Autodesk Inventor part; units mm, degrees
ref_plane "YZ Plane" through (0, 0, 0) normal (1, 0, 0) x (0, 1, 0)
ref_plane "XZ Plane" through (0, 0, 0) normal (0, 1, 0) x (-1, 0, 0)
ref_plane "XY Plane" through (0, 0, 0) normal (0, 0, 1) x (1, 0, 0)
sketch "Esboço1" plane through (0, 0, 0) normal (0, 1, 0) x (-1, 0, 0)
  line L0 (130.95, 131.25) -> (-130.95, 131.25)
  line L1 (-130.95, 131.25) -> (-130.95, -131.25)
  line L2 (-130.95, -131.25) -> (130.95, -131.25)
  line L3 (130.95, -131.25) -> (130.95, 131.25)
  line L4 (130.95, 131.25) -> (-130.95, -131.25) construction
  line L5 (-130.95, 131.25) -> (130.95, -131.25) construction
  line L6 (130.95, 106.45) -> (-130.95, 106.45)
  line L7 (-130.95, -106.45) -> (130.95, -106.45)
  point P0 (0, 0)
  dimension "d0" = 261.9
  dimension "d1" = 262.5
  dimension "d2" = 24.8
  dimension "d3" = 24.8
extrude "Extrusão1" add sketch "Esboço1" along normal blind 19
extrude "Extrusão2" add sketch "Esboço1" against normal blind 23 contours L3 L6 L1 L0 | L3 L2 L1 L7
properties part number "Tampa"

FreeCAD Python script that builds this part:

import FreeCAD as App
import Part
import Sketcher
from FreeCAD import Vector


def add_polygon(sketch, points):
    """Adds a closed chain of lines whose ends are joined by coincident constraints."""
    first, n = sketch.GeometryCount, len(points)
    for a, b in zip(points, points[1:] + points[:1]):
        sketch.addGeometry(Part.LineSegment(App.Vector(*a, 0), App.Vector(*b, 0)), False)
    for i in range(n):
        sketch.addConstraint(Sketcher.Constraint("Coincident", first + i, 2, first + (i + 1) % n, 1))

doc = App.newDocument("Part")
body = doc.addObject("PartDesign::Body", "Body")

# Sketch on XZ plane
sketch1 = body.newObject("Sketcher::SketchObject", "Sketch")
sketch1.AttachmentSupport = (doc.getObject("XZ_Plane"), [""])
sketch1.MapMode = "FlatFace"
add_polygon(sketch1, [(-130.95, 131.25), (130.95, 131.25), (130.95, -131.25), (-130.95, -131.25)])  # lines 0-3
sketch1.addConstraint(Sketcher.Constraint("Horizontal", 0))
sketch1.addConstraint(Sketcher.Constraint("Vertical", 1))
sketch1.addConstraint(Sketcher.Constraint("Horizontal", 2))
sketch1.addConstraint(Sketcher.Constraint("Vertical", 3))
sketch1.addConstraint(Sketcher.Constraint("Symmetric", 0, 2, 2, 2, -1, 1))
sketch1.addConstraint(Sketcher.Constraint("DistanceX", 0, 1, 0, 2, 261.9))
sketch1.addConstraint(Sketcher.Constraint("DistanceY", 1, 2, 1, 1, 262.5))
pad1 = body.newObject("PartDesign::Pad", "Pad")
pad1.Profile = sketch1
pad1.Length = 19
pad1.Reversed = True

# Sketch on XZ plane
sketch2 = body.newObject("Sketcher::SketchObject", "Sketch001")
sketch2.AttachmentSupport = (doc.getObject("XZ_Plane"), [""])
sketch2.MapMode = "FlatFace"
add_polygon(sketch2, [(-130.95, 106.45), (-130.95, 131.25), (130.95, 131.25), (130.95, 106.45)])  # lines 0-3
add_polygon(sketch2, [(-130.95, -131.25), (-130.95, -106.45), (130.95, -106.45), (130.95, -131.25)])  # lines 4-7
sketch2.addConstraint(Sketcher.Constraint("Vertical", 0))
sketch2.addConstraint(Sketcher.Constraint("Horizontal", 1))
sketch2.addConstraint(Sketcher.Constraint("Vertical", 2))
sketch2.addConstraint(Sketcher.Constraint("Horizontal", 3))
sketch2.addConstraint(Sketcher.Constraint("Vertical", 4))
sketch2.addConstraint(Sketcher.Constraint("Horizontal", 5))
sketch2.addConstraint(Sketcher.Constraint("Vertical", 6))
sketch2.addConstraint(Sketcher.Constraint("Horizontal", 7))
sketch2.addConstraint(Sketcher.Constraint("Symmetric", 2, 2, 4, 2, -1, 1))
sketch2.addConstraint(Sketcher.Constraint("Symmetric", 0, 2, 6, 2, -1, 1))
sketch2.addConstraint(Sketcher.Constraint("Vertical", 3, 2, 4, 2))
sketch2.addConstraint(Sketcher.Constraint("DistanceX", 1, 1, 1, 2, 261.9))
sketch2.addConstraint(Sketcher.Constraint("DistanceY", 0, 1, 0, 2, 24.8))
sketch2.addConstraint(Sketcher.Constraint("DistanceY", 6, 2, 1, 2, 262.5))
pad2 = body.newObject("PartDesign::Pad", "Pad001")
pad2.Profile = sketch2
pad2.Length = 23

doc.recompute()
